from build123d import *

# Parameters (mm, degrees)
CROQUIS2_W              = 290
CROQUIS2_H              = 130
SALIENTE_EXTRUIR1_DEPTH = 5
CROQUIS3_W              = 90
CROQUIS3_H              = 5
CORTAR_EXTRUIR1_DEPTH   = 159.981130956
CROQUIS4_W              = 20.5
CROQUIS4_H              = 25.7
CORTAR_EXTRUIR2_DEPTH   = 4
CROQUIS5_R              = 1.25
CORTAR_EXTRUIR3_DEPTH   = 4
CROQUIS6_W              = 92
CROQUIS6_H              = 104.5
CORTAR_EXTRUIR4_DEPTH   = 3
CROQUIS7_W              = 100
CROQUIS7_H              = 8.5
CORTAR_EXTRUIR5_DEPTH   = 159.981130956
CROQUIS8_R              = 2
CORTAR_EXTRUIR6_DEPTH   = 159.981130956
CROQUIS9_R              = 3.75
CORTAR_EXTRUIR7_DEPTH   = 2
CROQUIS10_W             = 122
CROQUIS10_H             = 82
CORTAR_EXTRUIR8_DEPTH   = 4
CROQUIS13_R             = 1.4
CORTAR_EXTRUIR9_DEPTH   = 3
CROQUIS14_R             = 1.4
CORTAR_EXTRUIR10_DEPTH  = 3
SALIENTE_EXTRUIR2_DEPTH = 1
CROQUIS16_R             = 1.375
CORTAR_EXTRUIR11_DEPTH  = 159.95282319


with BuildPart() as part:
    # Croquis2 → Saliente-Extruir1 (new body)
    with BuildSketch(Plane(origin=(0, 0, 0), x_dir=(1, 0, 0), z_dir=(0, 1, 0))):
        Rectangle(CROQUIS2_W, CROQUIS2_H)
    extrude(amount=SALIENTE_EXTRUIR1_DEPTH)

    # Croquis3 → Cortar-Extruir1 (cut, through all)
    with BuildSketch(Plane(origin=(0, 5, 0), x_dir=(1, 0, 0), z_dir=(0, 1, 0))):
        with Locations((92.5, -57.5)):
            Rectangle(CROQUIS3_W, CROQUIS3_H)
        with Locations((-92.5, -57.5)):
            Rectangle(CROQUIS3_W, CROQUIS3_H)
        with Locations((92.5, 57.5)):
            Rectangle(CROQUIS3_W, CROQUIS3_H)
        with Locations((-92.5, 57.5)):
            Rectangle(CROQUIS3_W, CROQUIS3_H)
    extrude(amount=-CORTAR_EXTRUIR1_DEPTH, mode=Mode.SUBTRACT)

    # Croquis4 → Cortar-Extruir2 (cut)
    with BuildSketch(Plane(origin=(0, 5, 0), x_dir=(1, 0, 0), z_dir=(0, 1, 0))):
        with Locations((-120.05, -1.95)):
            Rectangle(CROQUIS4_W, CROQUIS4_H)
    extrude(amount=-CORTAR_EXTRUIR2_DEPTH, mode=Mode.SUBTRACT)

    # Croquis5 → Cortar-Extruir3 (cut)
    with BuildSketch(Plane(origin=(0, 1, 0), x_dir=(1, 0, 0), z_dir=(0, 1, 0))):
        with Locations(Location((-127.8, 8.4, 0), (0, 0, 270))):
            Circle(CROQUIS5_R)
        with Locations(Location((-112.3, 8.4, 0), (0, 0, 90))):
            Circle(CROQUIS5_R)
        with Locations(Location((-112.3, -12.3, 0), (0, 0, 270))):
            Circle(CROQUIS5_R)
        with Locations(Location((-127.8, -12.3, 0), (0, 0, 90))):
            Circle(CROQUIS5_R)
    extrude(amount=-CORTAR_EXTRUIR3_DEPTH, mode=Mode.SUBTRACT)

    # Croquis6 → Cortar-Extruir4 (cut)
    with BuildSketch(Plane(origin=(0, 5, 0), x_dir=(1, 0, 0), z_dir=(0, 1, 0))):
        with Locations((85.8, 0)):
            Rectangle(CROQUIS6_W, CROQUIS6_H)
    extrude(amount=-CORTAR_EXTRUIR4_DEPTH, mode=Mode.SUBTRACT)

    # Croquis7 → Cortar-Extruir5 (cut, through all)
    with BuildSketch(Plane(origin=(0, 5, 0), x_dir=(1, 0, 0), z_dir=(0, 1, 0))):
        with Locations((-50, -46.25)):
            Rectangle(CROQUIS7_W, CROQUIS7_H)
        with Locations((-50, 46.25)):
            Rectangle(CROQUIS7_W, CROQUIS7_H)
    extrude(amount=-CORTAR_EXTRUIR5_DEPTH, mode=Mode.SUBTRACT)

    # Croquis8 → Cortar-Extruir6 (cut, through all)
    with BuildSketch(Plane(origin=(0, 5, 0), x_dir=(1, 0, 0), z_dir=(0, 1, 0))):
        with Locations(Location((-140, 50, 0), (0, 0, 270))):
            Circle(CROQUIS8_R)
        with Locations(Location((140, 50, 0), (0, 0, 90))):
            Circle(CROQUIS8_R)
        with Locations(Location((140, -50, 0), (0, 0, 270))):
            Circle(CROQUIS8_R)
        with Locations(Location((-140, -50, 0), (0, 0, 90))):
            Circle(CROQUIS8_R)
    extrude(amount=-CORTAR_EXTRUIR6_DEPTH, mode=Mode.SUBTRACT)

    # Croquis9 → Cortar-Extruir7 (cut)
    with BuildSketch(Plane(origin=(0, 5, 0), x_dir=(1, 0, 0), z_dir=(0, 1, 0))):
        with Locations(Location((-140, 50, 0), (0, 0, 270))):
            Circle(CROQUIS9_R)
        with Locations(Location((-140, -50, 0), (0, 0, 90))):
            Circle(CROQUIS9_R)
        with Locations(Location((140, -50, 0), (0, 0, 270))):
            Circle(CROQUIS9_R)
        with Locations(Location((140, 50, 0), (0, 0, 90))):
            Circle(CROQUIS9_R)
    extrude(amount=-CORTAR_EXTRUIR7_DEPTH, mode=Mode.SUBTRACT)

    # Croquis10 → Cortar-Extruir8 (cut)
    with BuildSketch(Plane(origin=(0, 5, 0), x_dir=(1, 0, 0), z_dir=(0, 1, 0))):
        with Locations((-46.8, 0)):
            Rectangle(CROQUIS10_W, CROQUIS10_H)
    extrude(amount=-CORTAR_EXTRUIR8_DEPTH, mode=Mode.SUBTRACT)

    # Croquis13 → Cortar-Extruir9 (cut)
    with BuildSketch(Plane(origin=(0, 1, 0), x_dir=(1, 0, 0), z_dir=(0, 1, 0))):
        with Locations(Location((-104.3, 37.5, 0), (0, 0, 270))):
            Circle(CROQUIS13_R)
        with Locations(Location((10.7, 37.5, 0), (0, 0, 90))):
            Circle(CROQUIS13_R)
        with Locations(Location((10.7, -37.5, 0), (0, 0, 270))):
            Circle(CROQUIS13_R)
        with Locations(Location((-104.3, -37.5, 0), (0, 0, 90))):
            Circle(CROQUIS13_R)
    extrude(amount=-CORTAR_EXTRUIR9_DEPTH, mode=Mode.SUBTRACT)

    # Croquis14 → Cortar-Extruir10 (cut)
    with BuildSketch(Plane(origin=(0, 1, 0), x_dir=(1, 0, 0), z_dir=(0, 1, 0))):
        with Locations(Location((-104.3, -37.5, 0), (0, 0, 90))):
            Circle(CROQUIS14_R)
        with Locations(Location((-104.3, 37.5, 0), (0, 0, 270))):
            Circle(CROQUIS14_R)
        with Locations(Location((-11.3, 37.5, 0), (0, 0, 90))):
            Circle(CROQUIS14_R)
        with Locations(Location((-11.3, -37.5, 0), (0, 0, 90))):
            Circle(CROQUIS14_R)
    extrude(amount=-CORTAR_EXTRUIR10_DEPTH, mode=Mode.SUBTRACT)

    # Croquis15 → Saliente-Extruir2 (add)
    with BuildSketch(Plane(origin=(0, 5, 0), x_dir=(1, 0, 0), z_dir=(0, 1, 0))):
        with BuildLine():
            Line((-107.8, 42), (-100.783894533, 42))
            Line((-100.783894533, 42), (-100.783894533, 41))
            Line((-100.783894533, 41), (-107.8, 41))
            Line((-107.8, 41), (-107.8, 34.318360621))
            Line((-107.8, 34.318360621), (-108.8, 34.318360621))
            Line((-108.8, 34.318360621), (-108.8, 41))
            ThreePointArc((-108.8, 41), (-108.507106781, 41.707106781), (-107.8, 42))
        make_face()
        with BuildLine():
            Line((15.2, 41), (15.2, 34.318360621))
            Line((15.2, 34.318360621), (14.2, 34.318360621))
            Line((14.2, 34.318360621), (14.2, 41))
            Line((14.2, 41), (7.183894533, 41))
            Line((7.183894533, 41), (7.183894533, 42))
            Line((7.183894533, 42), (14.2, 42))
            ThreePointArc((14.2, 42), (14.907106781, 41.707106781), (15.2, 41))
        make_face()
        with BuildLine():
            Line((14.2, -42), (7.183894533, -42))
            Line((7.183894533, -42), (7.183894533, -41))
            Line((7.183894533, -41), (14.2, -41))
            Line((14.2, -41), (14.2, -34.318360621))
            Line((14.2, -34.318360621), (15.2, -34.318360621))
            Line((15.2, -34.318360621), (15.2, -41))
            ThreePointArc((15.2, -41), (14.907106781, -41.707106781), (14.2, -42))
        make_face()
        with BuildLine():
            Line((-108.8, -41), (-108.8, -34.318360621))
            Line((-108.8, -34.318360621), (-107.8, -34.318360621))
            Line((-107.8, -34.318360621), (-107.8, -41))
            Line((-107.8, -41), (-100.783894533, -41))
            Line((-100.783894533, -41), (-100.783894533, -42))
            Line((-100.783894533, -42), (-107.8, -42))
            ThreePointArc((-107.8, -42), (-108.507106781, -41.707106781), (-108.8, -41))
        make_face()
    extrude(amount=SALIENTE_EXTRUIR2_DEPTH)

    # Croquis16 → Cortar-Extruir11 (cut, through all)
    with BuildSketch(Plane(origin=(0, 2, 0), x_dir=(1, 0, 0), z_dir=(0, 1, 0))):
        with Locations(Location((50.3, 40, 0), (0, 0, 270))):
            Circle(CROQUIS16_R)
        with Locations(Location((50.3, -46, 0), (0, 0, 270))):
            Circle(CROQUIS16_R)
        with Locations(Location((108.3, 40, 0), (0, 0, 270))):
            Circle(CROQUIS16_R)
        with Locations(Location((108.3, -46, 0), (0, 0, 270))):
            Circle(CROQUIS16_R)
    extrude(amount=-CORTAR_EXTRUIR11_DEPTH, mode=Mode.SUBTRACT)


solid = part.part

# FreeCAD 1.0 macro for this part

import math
import FreeCAD as App
import Part
import Sketcher


def add_polygon(sketch, points):
    """Adds a closed chain of lines whose ends are joined by coincident constraints."""
    first, n = sketch.GeometryCount, len(points)
    for a, b in zip(points, points[1:] + points[:1]):
        sketch.addGeometry(Part.LineSegment(App.Vector(*a, 0), App.Vector(*b, 0)), False)
    for i in range(n):
        sketch.addConstraint(Sketcher.Constraint("Coincident", first + i, 2, first + (i + 1) % n, 1))

doc = App.newDocument("Part")
params = doc.addObject("Spreadsheet::Sheet", "Params")
for row, (alias, value) in enumerate([
    ("sketch1_width", "290 mm"),
    ("sketch1_height", "130 mm"),
    ("pad1_length", "5 mm"),
    ("sketch2_width", "90 mm"),
    ("sketch2_height", "5 mm"),
    ("sketch3_width", "20.5 mm"),
    ("sketch3_height", "25.7 mm"),
    ("pocket2_length", "4 mm"),
    ("sketch4_diameter", "2.5 mm"),
    ("pocket3_length", "4 mm"),
    ("sketch5_width", "92 mm"),
    ("sketch5_height", "104.5 mm"),
    ("pocket4_length", "3 mm"),
    ("sketch6_width", "100 mm"),
    ("sketch6_height", "8.5 mm"),
    ("sketch7_diameter", "4 mm"),
    ("sketch8_diameter", "7.5 mm"),
    ("pocket7_length", "2 mm"),
    ("sketch9_width", "122 mm"),
    ("sketch9_height", "82 mm"),
    ("pocket8_length", "4 mm"),
    ("sketch10_diameter", "2.8 mm"),
    ("pocket9_length", "3 mm"),
    ("sketch11_diameter", "2.8 mm"),
    ("pocket10_length", "3 mm"),
    ("sketch12_radius", "1 mm"),
    ("pad2_length", "1 mm"),
    ("sketch13_diameter", "2.75 mm"),
], start=1):
    params.set(f"A{row}", alias)
    params.set(f"B{row}", "=" + value)
    params.setAlias(f"B{row}", alias)

body = doc.addObject("PartDesign::Body", "Body")

sketch1 = body.newObject("Sketcher::SketchObject", "Sketch")
sketch1.AttachmentSupport = (doc.getObject("XZ_Plane"), [""])
sketch1.MapMode = "FlatFace"
add_polygon(sketch1, [(-145, -65), (-145, 65), (145, 65), (145, -65)])
sketch1.addConstraint([
    Sketcher.Constraint("Vertical", 0),
    Sketcher.Constraint("Horizontal", 1),
    Sketcher.Constraint("Vertical", 2),
    Sketcher.Constraint("Horizontal", 3),
    Sketcher.Constraint("Symmetric", 0, 2, 2, 2, -1, 1),
    Sketcher.Constraint("DistanceX", 1, 1, 1, 2, 290.0),
    Sketcher.Constraint("DistanceY", 0, 1, 0, 2, 130.0),
])
sketch1.setExpression("Constraints[9]", "Params.sketch1_width")
sketch1.setExpression("Constraints[10]", "Params.sketch1_height")
pad1 = body.newObject("PartDesign::Pad", "Pad")
pad1.Profile = sketch1
pad1.setExpression("Length", "Params.pad1_length")
pad1.Reversed = True

sketch2 = body.newObject("Sketcher::SketchObject", "Sketch001")
sketch2.AttachmentSupport = (doc.getObject("XZ_Plane"), [""])
sketch2.MapMode = "FlatFace"
sketch2.AttachmentOffset = App.Placement(App.Vector(0, 0, -5), App.Rotation())
add_polygon(sketch2, [(47.5, 55), (47.5, 60), (137.5, 60), (137.5, 55)])
add_polygon(sketch2, [(-137.5, 55), (-137.5, 60), (-47.5, 60), (-47.5, 55)])
add_polygon(sketch2, [(47.5, -60), (47.5, -55), (137.5, -55), (137.5, -60)])
add_polygon(sketch2, [(-137.5, -60), (-137.5, -55), (-47.5, -55), (-47.5, -60)])
sketch2.addConstraint([
    Sketcher.Constraint("Vertical", 0),
    Sketcher.Constraint("Horizontal", 1),
    Sketcher.Constraint("Vertical", 2),
    Sketcher.Constraint("Horizontal", 3),
    Sketcher.Constraint("Vertical", 4),
    Sketcher.Constraint("Horizontal", 5),
    Sketcher.Constraint("Vertical", 6),
    Sketcher.Constraint("Horizontal", 7),
    Sketcher.Constraint("Vertical", 8),
    Sketcher.Constraint("Horizontal", 9),
    Sketcher.Constraint("Vertical", 10),
    Sketcher.Constraint("Horizontal", 11),
    Sketcher.Constraint("Vertical", 12),
    Sketcher.Constraint("Horizontal", 13),
    Sketcher.Constraint("Vertical", 14),
    Sketcher.Constraint("Horizontal", 15),
    Sketcher.Constraint("Symmetric", 6, 2, 8, 2, -1, 1),
    Sketcher.Constraint("Symmetric", 4, 2, 10, 2, -1, 1),
    Sketcher.Constraint("Symmetric", 2, 2, 12, 2, -1, 1),
    Sketcher.Constraint("Symmetric", 0, 2, 14, 2, -1, 1),
    Sketcher.Constraint("Symmetric", 1, 2, 4, 2, -2),
    Sketcher.Constraint("Symmetric", 3, 2, 6, 2, -2),
    Sketcher.Constraint("DistanceX", 1, 1, 1, 2, 90.0),
    Sketcher.Constraint("DistanceY", 0, 1, 0, 2, 5.0),
    Sketcher.Constraint("DistanceY", -1, 1, 0, 2, 60.0),
    Sketcher.Constraint("DistanceX", 4, 2, 0, 2, 185.0),
])
sketch2.setExpression("Constraints[38]", "Params.sketch2_width")
sketch2.setExpression("Constraints[39]", "Params.sketch2_height")
pocket1 = body.newObject("PartDesign::Pocket", "Pocket")
pocket1.Profile = sketch2
pocket1.Type = "ThroughAll"
pocket1.Reversed = True

sketch3 = body.newObject("Sketcher::SketchObject", "Sketch002")
sketch3.AttachmentSupport = (doc.getObject("XZ_Plane"), [""])
sketch3.MapMode = "FlatFace"
sketch3.AttachmentOffset = App.Placement(App.Vector(0, 0, -5), App.Rotation())
add_polygon(sketch3, [(-130.3, -10.9), (-130.3, 14.8), (-109.8, 14.8), (-109.8, -10.9)])
sketch3.addConstraint([
    Sketcher.Constraint("Vertical", 0),
    Sketcher.Constraint("Horizontal", 1),
    Sketcher.Constraint("Vertical", 2),
    Sketcher.Constraint("Horizontal", 3),
    Sketcher.Constraint("DistanceX", 1, 1, 1, 2, 20.5),
    Sketcher.Constraint("DistanceY", 0, 1, 0, 2, 25.7),
    Sketcher.Constraint("DistanceX", 0, 2, -1, 1, 130.3),
    Sketcher.Constraint("DistanceY", -1, 1, 0, 2, 14.8),
])
sketch3.setExpression("Constraints[8]", "Params.sketch3_width")
sketch3.setExpression("Constraints[9]", "Params.sketch3_height")
pocket2 = body.newObject("PartDesign::Pocket", "Pocket001")
pocket2.Profile = sketch3
pocket2.setExpression("Length", "Params.pocket2_length")
pocket2.Reversed = True

sketch4 = body.newObject("Sketcher::SketchObject", "Sketch003")
sketch4.AttachmentSupport = (doc.getObject("XZ_Plane"), [""])
sketch4.MapMode = "FlatFace"
sketch4.AttachmentOffset = App.Placement(App.Vector(0, 0, -1), App.Rotation())
sketch4.addGeometry([
    Part.Circle(App.Vector(-127.8, -8.4, 0), App.Vector(0, 0, 1), 1.25),
    Part.Circle(App.Vector(-112.3, -8.4, 0), App.Vector(0, 0, 1), 1.25),
    Part.Circle(App.Vector(-112.3, 12.3, 0), App.Vector(0, 0, 1), 1.25),
    Part.Circle(App.Vector(-127.8, 12.3, 0), App.Vector(0, 0, 1), 1.25),
], False)
sketch4.addConstraint([
    Sketcher.Constraint("Equal", 0, 1),
    Sketcher.Constraint("Equal", 1, 2),
    Sketcher.Constraint("Equal", 2, 3),
    Sketcher.Constraint("Horizontal", 0, 3, 1, 3),
    Sketcher.Constraint("Horizontal", 2, 3, 3, 3),
    Sketcher.Constraint("Vertical", 1, 3, 2, 3),
    Sketcher.Constraint("Vertical", 0, 3, 3, 3),
    Sketcher.Constraint("Diameter", 0, 2.5),
    Sketcher.Constraint("DistanceX", 0, 3, -1, 1, 127.8),
    Sketcher.Constraint("DistanceY", 0, 3, -1, 1, 8.4),
    Sketcher.Constraint("DistanceX", 1, 3, -1, 1, 112.3),
    Sketcher.Constraint("DistanceY", -1, 1, 2, 3, 12.3),
])
sketch4.setExpression("Constraints[7]", "Params.sketch4_diameter")
pocket3 = body.newObject("PartDesign::Pocket", "Pocket002")
pocket3.Profile = sketch4
pocket3.setExpression("Length", "Params.pocket3_length")
pocket3.Reversed = True

sketch5 = body.newObject("Sketcher::SketchObject", "Sketch004")
sketch5.AttachmentSupport = (doc.getObject("XZ_Plane"), [""])
sketch5.MapMode = "FlatFace"
sketch5.AttachmentOffset = App.Placement(App.Vector(0, 0, -5), App.Rotation())
add_polygon(sketch5, [(39.8, -52.25), (39.8, 52.25), (131.8, 52.25), (131.8, -52.25)])
sketch5.addConstraint([
    Sketcher.Constraint("Vertical", 0),
    Sketcher.Constraint("Horizontal", 1),
    Sketcher.Constraint("Vertical", 2),
    Sketcher.Constraint("Horizontal", 3),
    Sketcher.Constraint("DistanceX", 1, 1, 1, 2, 92.0),
    Sketcher.Constraint("DistanceY", 0, 1, 0, 2, 104.5),
    Sketcher.Constraint("DistanceX", -1, 1, 0, 2, 39.8),
    Sketcher.Constraint("DistanceY", -1, 1, 0, 2, 52.25),
])
sketch5.setExpression("Constraints[8]", "Params.sketch5_width")
sketch5.setExpression("Constraints[9]", "Params.sketch5_height")
pocket4 = body.newObject("PartDesign::Pocket", "Pocket003")
pocket4.Profile = sketch5
pocket4.setExpression("Length", "Params.pocket4_length")
pocket4.Reversed = True

sketch6 = body.newObject("Sketcher::SketchObject", "Sketch005")
sketch6.AttachmentSupport = (doc.getObject("XZ_Plane"), [""])
sketch6.MapMode = "FlatFace"
sketch6.AttachmentOffset = App.Placement(App.Vector(0, 0, -5), App.Rotation())
add_polygon(sketch6, [(-100, 42), (-100, 50.5), (0, 50.5), (0, 42)])
add_polygon(sketch6, [(-100, -50.5), (-100, -42), (0, -42), (0, -50.5)])
sketch6.addConstraint([
    Sketcher.Constraint("Vertical", 0),
    Sketcher.Constraint("Horizontal", 1),
    Sketcher.Constraint("Vertical", 2),
    Sketcher.Constraint("Horizontal", 3),
    Sketcher.Constraint("Vertical", 4),
    Sketcher.Constraint("Horizontal", 5),
    Sketcher.Constraint("Vertical", 6),
    Sketcher.Constraint("Horizontal", 7),
    Sketcher.Constraint("Symmetric", 2, 2, 5, 2, -1, 1),
    Sketcher.Constraint("Symmetric", 1, 2, 6, 2, -1),
    Sketcher.Constraint("Vertical", 3, 2, 4, 2),
    Sketcher.Constraint("DistanceX", 1, 1, 1, 2, 100.0),
    Sketcher.Constraint("DistanceY", 0, 1, 0, 2, 8.5),
    Sketcher.Constraint("DistanceY", -1, 1, 2, 2, 42.0),
])
sketch6.setExpression("Constraints[19]", "Params.sketch6_width")
sketch6.setExpression("Constraints[20]", "Params.sketch6_height")
pocket5 = body.newObject("PartDesign::Pocket", "Pocket004")
pocket5.Profile = sketch6
pocket5.Type = "ThroughAll"
pocket5.Reversed = True

sketch7 = body.newObject("Sketcher::SketchObject", "Sketch006")
sketch7.AttachmentSupport = (doc.getObject("XZ_Plane"), [""])
sketch7.MapMode = "FlatFace"
sketch7.AttachmentOffset = App.Placement(App.Vector(0, 0, -5), App.Rotation())
sketch7.addGeometry([
    Part.Circle(App.Vector(-140, -50, 0), App.Vector(0, 0, 1), 2),
    Part.Circle(App.Vector(140, -50, 0), App.Vector(0, 0, 1), 2),
    Part.Circle(App.Vector(140, 50, 0), App.Vector(0, 0, 1), 2),
    Part.Circle(App.Vector(-140, 50, 0), App.Vector(0, 0, 1), 2),
], False)
sketch7.addConstraint([
    Sketcher.Constraint("Equal", 0, 1),
    Sketcher.Constraint("Equal", 1, 2),
    Sketcher.Constraint("Equal", 2, 3),
    Sketcher.Constraint("Symmetric", 0, 3, 2, 3, -1, 1),
    Sketcher.Constraint("Symmetric", 1, 3, 3, 3, -1, 1),
    Sketcher.Constraint("Symmetric", 0, 3, 1, 3, -2),
    Sketcher.Constraint("Diameter", 0, 4.0),
    Sketcher.Constraint("DistanceX", 0, 3, -1, 1, 140.0),
    Sketcher.Constraint("DistanceY", 0, 3, -1, 1, 50.0),
])
sketch7.setExpression("Constraints[6]", "Params.sketch7_diameter")
pocket6 = body.newObject("PartDesign::Pocket", "Pocket005")
pocket6.Profile = sketch7
pocket6.Type = "ThroughAll"
pocket6.Reversed = True

sketch8 = body.newObject("Sketcher::SketchObject", "Sketch007")
sketch8.AttachmentSupport = (doc.getObject("XZ_Plane"), [""])
sketch8.MapMode = "FlatFace"
sketch8.AttachmentOffset = App.Placement(App.Vector(0, 0, -5), App.Rotation())
sketch8.addGeometry([
    Part.Circle(App.Vector(-140, -50, 0), App.Vector(0, 0, 1), 3.75),
    Part.Circle(App.Vector(-140, 50, 0), App.Vector(0, 0, 1), 3.75),
    Part.Circle(App.Vector(140, 50, 0), App.Vector(0, 0, 1), 3.75),
    Part.Circle(App.Vector(140, -50, 0), App.Vector(0, 0, 1), 3.75),
], False)
sketch8.addConstraint([
    Sketcher.Constraint("Equal", 0, 1),
    Sketcher.Constraint("Equal", 1, 2),
    Sketcher.Constraint("Equal", 2, 3),
    Sketcher.Constraint("Symmetric", 0, 3, 2, 3, -1, 1),
    Sketcher.Constraint("Symmetric", 1, 3, 3, 3, -1, 1),
    Sketcher.Constraint("Symmetric", 1, 3, 2, 3, -2),
    Sketcher.Constraint("Diameter", 0, 7.5),
    Sketcher.Constraint("DistanceX", 0, 3, -1, 1, 140.0),
    Sketcher.Constraint("DistanceY", 0, 3, -1, 1, 50.0),
])
sketch8.setExpression("Constraints[6]", "Params.sketch8_diameter")
pocket7 = body.newObject("PartDesign::Pocket", "Pocket006")
pocket7.Profile = sketch8
pocket7.setExpression("Length", "Params.pocket7_length")
pocket7.Reversed = True

sketch9 = body.newObject("Sketcher::SketchObject", "Sketch008")
sketch9.AttachmentSupport = (doc.getObject("XZ_Plane"), [""])
sketch9.MapMode = "FlatFace"
sketch9.AttachmentOffset = App.Placement(App.Vector(0, 0, -5), App.Rotation())
add_polygon(sketch9, [(-107.8, -41), (-107.8, 41), (14.2, 41), (14.2, -41)])
sketch9.addConstraint([
    Sketcher.Constraint("Vertical", 0),
    Sketcher.Constraint("Horizontal", 1),
    Sketcher.Constraint("Vertical", 2),
    Sketcher.Constraint("Horizontal", 3),
    Sketcher.Constraint("DistanceX", 1, 1, 1, 2, 122.0),
    Sketcher.Constraint("DistanceY", 0, 1, 0, 2, 82.0),
    Sketcher.Constraint("DistanceY", -1, 1, 0, 2, 41.0),
    Sketcher.Constraint("DistanceX", 0, 2, -1, 1, 107.8),
])
sketch9.setExpression("Constraints[8]", "Params.sketch9_width")
sketch9.setExpression("Constraints[9]", "Params.sketch9_height")
pocket8 = body.newObject("PartDesign::Pocket", "Pocket007")
pocket8.Profile = sketch9
pocket8.setExpression("Length", "Params.pocket8_length")
pocket8.Reversed = True

sketch10 = body.newObject("Sketcher::SketchObject", "Sketch009")
sketch10.AttachmentSupport = (doc.getObject("XZ_Plane"), [""])
sketch10.MapMode = "FlatFace"
sketch10.AttachmentOffset = App.Placement(App.Vector(0, 0, -1), App.Rotation())
sketch10.addGeometry([
    Part.Circle(App.Vector(-104.3, -37.5, 0), App.Vector(0, 0, 1), 1.4),
    Part.Circle(App.Vector(10.7, -37.5, 0), App.Vector(0, 0, 1), 1.4),
    Part.Circle(App.Vector(10.7, 37.5, 0), App.Vector(0, 0, 1), 1.4),
    Part.Circle(App.Vector(-104.3, 37.5, 0), App.Vector(0, 0, 1), 1.4),
], False)
sketch10.addConstraint([
    Sketcher.Constraint("Equal", 0, 1),
    Sketcher.Constraint("Equal", 1, 2),
    Sketcher.Constraint("Equal", 2, 3),
    Sketcher.Constraint("Symmetric", 1, 3, 2, 3, -1),
    Sketcher.Constraint("Symmetric", 0, 3, 3, 3, -1),
    Sketcher.Constraint("Horizontal", 0, 3, 1, 3),
    Sketcher.Constraint("Diameter", 0, 2.8),
    Sketcher.Constraint("DistanceX", 0, 3, 1, 3, 115.0),
    Sketcher.Constraint("DistanceY", 1, 3, 2, 3, 75.0),
    Sketcher.Constraint("DistanceX", 0, 3, -1, 1, 104.3),
])
sketch10.setExpression("Constraints[6]", "Params.sketch10_diameter")
pocket9 = body.newObject("PartDesign::Pocket", "Pocket008")
pocket9.Profile = sketch10
pocket9.setExpression("Length", "Params.pocket9_length")
pocket9.Reversed = True

sketch11 = body.newObject("Sketcher::SketchObject", "Sketch010")
sketch11.AttachmentSupport = (doc.getObject("XZ_Plane"), [""])
sketch11.MapMode = "FlatFace"
sketch11.AttachmentOffset = App.Placement(App.Vector(0, 0, -1), App.Rotation())
sketch11.addGeometry([
    Part.Circle(App.Vector(-104.3, 37.5, 0), App.Vector(0, 0, 1), 1.4),
    Part.Circle(App.Vector(-104.3, -37.5, 0), App.Vector(0, 0, 1), 1.4),
    Part.Circle(App.Vector(-11.3, -37.5, 0), App.Vector(0, 0, 1), 1.4),
    Part.Circle(App.Vector(-11.3, 37.5, 0), App.Vector(0, 0, 1), 1.4),
], False)
sketch11.addConstraint([
    Sketcher.Constraint("Equal", 0, 1),
    Sketcher.Constraint("Equal", 1, 2),
    Sketcher.Constraint("Equal", 2, 3),
    Sketcher.Constraint("Symmetric", 0, 3, 1, 3, -1),
    Sketcher.Constraint("Symmetric", 2, 3, 3, 3, -1),
    Sketcher.Constraint("Horizontal", 1, 3, 2, 3),
    Sketcher.Constraint("Diameter", 0, 2.8),
    Sketcher.Constraint("DistanceY", 1, 3, 0, 3, 75.0),
    Sketcher.Constraint("DistanceX", 1, 3, 2, 3, 93.0),
    Sketcher.Constraint("DistanceX", 0, 3, -1, 1, 104.3),
])
sketch11.setExpression("Constraints[6]", "Params.sketch11_diameter")
pocket10 = body.newObject("PartDesign::Pocket", "Pocket009")
pocket10.Profile = sketch11
pocket10.setExpression("Length", "Params.pocket10_length")
pocket10.Reversed = True

sketch12 = body.newObject("Sketcher::SketchObject", "Sketch011")
sketch12.AttachmentSupport = (doc.getObject("XZ_Plane"), [""])
sketch12.MapMode = "FlatFace"
sketch12.AttachmentOffset = App.Placement(App.Vector(0, 0, -5), App.Rotation())
sketch12.addGeometry([
    Part.LineSegment(App.Vector(-100.783895, -42, 0), App.Vector(-107.8, -42, 0)),
    Part.ArcOfCircle(Part.Circle(App.Vector(-107.8, -41, 0), App.Vector(0, 0, 1), 1), math.radians(-180), math.radians(-90)),
    Part.LineSegment(App.Vector(-108.8, -41, 0), App.Vector(-108.8, -34.318361, 0)),
    Part.LineSegment(App.Vector(-108.8, -34.318361, 0), App.Vector(-107.8, -34.318361, 0)),
    Part.LineSegment(App.Vector(-107.8, -34.318361, 0), App.Vector(-107.8, -41, 0)),
    Part.LineSegment(App.Vector(-107.8, -41, 0), App.Vector(-100.783895, -41, 0)),
    Part.LineSegment(App.Vector(-100.783895, -41, 0), App.Vector(-100.783895, -42, 0)),
    Part.LineSegment(App.Vector(15.2, -34.318361, 0), App.Vector(15.2, -41, 0)),
    Part.ArcOfCircle(Part.Circle(App.Vector(14.2, -41, 0), App.Vector(0, 0, 1), 1), math.radians(-90), math.radians(0)),
    Part.LineSegment(App.Vector(14.2, -42, 0), App.Vector(7.183895, -42, 0)),
    Part.LineSegment(App.Vector(7.183895, -42, 0), App.Vector(7.183895, -41, 0)),
    Part.LineSegment(App.Vector(7.183895, -41, 0), App.Vector(14.2, -41, 0)),
    Part.LineSegment(App.Vector(14.2, -41, 0), App.Vector(14.2, -34.318361, 0)),
    Part.LineSegment(App.Vector(14.2, -34.318361, 0), App.Vector(15.2, -34.318361, 0)),
    Part.LineSegment(App.Vector(7.183895, 42, 0), App.Vector(14.2, 42, 0)),
    Part.ArcOfCircle(Part.Circle(App.Vector(14.2, 41, 0), App.Vector(0, 0, 1), 1), math.radians(0), math.radians(90)),
    Part.LineSegment(App.Vector(15.2, 41, 0), App.Vector(15.2, 34.318361, 0)),
    Part.LineSegment(App.Vector(15.2, 34.318361, 0), App.Vector(14.2, 34.318361, 0)),
    Part.LineSegment(App.Vector(14.2, 34.318361, 0), App.Vector(14.2, 41, 0)),
    Part.LineSegment(App.Vector(14.2, 41, 0), App.Vector(7.183895, 41, 0)),
    Part.LineSegment(App.Vector(7.183895, 41, 0), App.Vector(7.183895, 42, 0)),
    Part.LineSegment(App.Vector(-108.8, 34.318361, 0), App.Vector(-108.8, 41, 0)),
    Part.ArcOfCircle(Part.Circle(App.Vector(-107.8, 41, 0), App.Vector(0, 0, 1), 1), math.radians(90), math.radians(180)),
    Part.LineSegment(App.Vector(-107.8, 42, 0), App.Vector(-100.783895, 42, 0)),
    Part.LineSegment(App.Vector(-100.783895, 42, 0), App.Vector(-100.783895, 41, 0)),
    Part.LineSegment(App.Vector(-100.783895, 41, 0), App.Vector(-107.8, 41, 0)),
    Part.LineSegment(App.Vector(-107.8, 41, 0), App.Vector(-107.8, 34.318361, 0)),
    Part.LineSegment(App.Vector(-107.8, 34.318361, 0), App.Vector(-108.8, 34.318361, 0)),
], False)
sketch12.addConstraint([
    Sketcher.Constraint("Tangent", 0, 2, 1, 2),
    Sketcher.Constraint("Tangent", 1, 1, 2, 1),
    Sketcher.Constraint("Coincident", 2, 2, 3, 1),
    Sketcher.Constraint("Coincident", 3, 2, 4, 1),
    Sketcher.Constraint("Coincident", 4, 2, 5, 1),
    Sketcher.Constraint("Coincident", 5, 2, 6, 1),
    Sketcher.Constraint("Coincident", 6, 2, 0, 1),
    Sketcher.Constraint("Tangent", 7, 2, 8, 2),
    Sketcher.Constraint("Tangent", 8, 1, 9, 1),
    Sketcher.Constraint("Coincident", 9, 2, 10, 1),
    Sketcher.Constraint("Coincident", 10, 2, 11, 1),
    Sketcher.Constraint("Coincident", 11, 2, 12, 1),
    Sketcher.Constraint("Coincident", 12, 2, 13, 1),
    Sketcher.Constraint("Coincident", 13, 2, 7, 1),
    Sketcher.Constraint("Tangent", 14, 2, 15, 2),
    Sketcher.Constraint("Tangent", 15, 1, 16, 1),
    Sketcher.Constraint("Coincident", 16, 2, 17, 1),
    Sketcher.Constraint("Coincident", 17, 2, 18, 1),
    Sketcher.Constraint("Coincident", 18, 2, 19, 1),
    Sketcher.Constraint("Coincident", 19, 2, 20, 1),
    Sketcher.Constraint("Coincident", 20, 2, 14, 1),
    Sketcher.Constraint("Tangent", 21, 2, 22, 2),
    Sketcher.Constraint("Tangent", 22, 1, 23, 1),
    Sketcher.Constraint("Coincident", 23, 2, 24, 1),
    Sketcher.Constraint("Coincident", 24, 2, 25, 1),
    Sketcher.Constraint("Coincident", 25, 2, 26, 1),
    Sketcher.Constraint("Coincident", 26, 2, 27, 1),
    Sketcher.Constraint("Coincident", 27, 2, 21, 1),
    Sketcher.Constraint("Horizontal", 0),
    Sketcher.Constraint("Vertical", 2),
    Sketcher.Constraint("Horizontal", 3),
    Sketcher.Constraint("Vertical", 4),
    Sketcher.Constraint("Horizontal", 5),
    Sketcher.Constraint("Vertical", 6),
    Sketcher.Constraint("Vertical", 7),
    Sketcher.Constraint("Horizontal", 9),
    Sketcher.Constraint("Vertical", 10),
    Sketcher.Constraint("Horizontal", 11),
    Sketcher.Constraint("Vertical", 12),
    Sketcher.Constraint("Horizontal", 13),
    Sketcher.Constraint("Horizontal", 14),
    Sketcher.Constraint("Vertical", 16),
    Sketcher.Constraint("Horizontal", 17),
    Sketcher.Constraint("Vertical", 18),
    Sketcher.Constraint("Horizontal", 19),
    Sketcher.Constraint("Vertical", 20),
    Sketcher.Constraint("Vertical", 21),
    Sketcher.Constraint("Horizontal", 23),
    Sketcher.Constraint("Vertical", 24),
    Sketcher.Constraint("Horizontal", 25),
    Sketcher.Constraint("Vertical", 26),
    Sketcher.Constraint("Horizontal", 27),
    Sketcher.Constraint("Coincident", 4, 2, 1, 3),
    Sketcher.Constraint("Coincident", 11, 2, 8, 3),
    Sketcher.Constraint("Coincident", 18, 2, 15, 3),
    Sketcher.Constraint("Coincident", 25, 2, 22, 3),
    Sketcher.Constraint("Equal", 1, 8),
    Sketcher.Constraint("Equal", 8, 15),
    Sketcher.Constraint("Equal", 15, 22),
    Sketcher.Constraint("Symmetric", 8, 3, 15, 3, -1),
    Sketcher.Constraint("Symmetric", 1, 3, 22, 3, -1),
    Sketcher.Constraint("Horizontal", 1, 3, 8, 3),
    Sketcher.Constraint("Horizontal", 3, 2, 12, 2),
    Sketcher.Constraint("Horizontal", 17, 2, 26, 2),
    Sketcher.Constraint("Vertical", 10, 2, 19, 2),
    Sketcher.Constraint("Vertical", 6, 2, 23, 2),
    Sketcher.Constraint("Equal", 5, 9),
    Sketcher.Constraint("Equal", 12, 16),
    Sketcher.Constraint("Radius", 1, 1.0),
    Sketcher.Constraint("DistanceY", 1, 3, -1, 1, 41.0),
    Sketcher.Constraint("DistanceX", 1, 3, 8, 3, 122.0),
    Sketcher.Constraint("DistanceX", 1, 3, -1, 1, 107.8),
    Sketcher.Constraint("DistanceY", 2, 1, 2, 2, 6.681639),
    Sketcher.Constraint("DistanceX", 0, 2, 0, 1, 7.016105),
])
sketch12.setExpression("Constraints[68]", "Params.sketch12_radius")
pad2 = body.newObject("PartDesign::Pad", "Pad001")
pad2.Profile = sketch12
pad2.setExpression("Length", "Params.pad2_length")
pad2.Reversed = True

sketch13 = body.newObject("Sketcher::SketchObject", "Sketch012")
sketch13.AttachmentSupport = (doc.getObject("XZ_Plane"), [""])
sketch13.MapMode = "FlatFace"
sketch13.AttachmentOffset = App.Placement(App.Vector(0, 0, -2), App.Rotation())
sketch13.addGeometry([
    Part.Circle(App.Vector(50.3, -40, 0), App.Vector(0, 0, 1), 1.375),
    Part.Circle(App.Vector(50.3, 46, 0), App.Vector(0, 0, 1), 1.375),
    Part.Circle(App.Vector(108.3, -40, 0), App.Vector(0, 0, 1), 1.375),
    Part.Circle(App.Vector(108.3, 46, 0), App.Vector(0, 0, 1), 1.375),
], False)
sketch13.addConstraint([
    Sketcher.Constraint("Equal", 0, 1),
    Sketcher.Constraint("Equal", 1, 2),
    Sketcher.Constraint("Equal", 2, 3),
    Sketcher.Constraint("Horizontal", 0, 3, 2, 3),
    Sketcher.Constraint("Horizontal", 1, 3, 3, 3),
    Sketcher.Constraint("Vertical", 0, 3, 1, 3),
    Sketcher.Constraint("Vertical", 2, 3, 3, 3),
    Sketcher.Constraint("Diameter", 0, 2.75),
    Sketcher.Constraint("DistanceY", 0, 3, -1, 1, 40.0),
    Sketcher.Constraint("DistanceY", -1, 1, 1, 3, 46.0),
    Sketcher.Constraint("DistanceX", 0, 3, 2, 3, 58.0),
    Sketcher.Constraint("DistanceX", -1, 1, 0, 3, 50.3),
])
sketch13.setExpression("Constraints[7]", "Params.sketch13_diameter")
pocket11 = body.newObject("PartDesign::Pocket", "Pocket010")
pocket11.Profile = sketch13
pocket11.Type = "ThroughAll"
pocket11.Reversed = True

doc.recompute()
